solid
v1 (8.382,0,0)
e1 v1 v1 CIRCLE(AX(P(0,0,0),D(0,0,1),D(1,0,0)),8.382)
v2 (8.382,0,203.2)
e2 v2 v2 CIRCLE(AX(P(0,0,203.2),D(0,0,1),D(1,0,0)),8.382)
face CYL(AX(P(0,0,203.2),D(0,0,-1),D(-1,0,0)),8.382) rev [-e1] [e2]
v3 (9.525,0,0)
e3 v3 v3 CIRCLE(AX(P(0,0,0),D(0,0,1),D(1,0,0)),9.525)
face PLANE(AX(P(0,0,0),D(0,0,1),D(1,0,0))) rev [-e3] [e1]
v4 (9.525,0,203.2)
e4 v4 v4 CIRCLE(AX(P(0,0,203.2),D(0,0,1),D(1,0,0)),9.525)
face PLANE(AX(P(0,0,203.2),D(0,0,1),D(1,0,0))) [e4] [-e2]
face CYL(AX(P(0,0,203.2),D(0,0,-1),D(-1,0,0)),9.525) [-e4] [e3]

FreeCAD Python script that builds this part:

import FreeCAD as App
import Part
import Sketcher

V = App.Vector
Q = App.Units.Quantity

doc = App.newDocument("Part")
params = doc.addObject("Spreadsheet::Sheet", "Params")
for row, (alias, value) in enumerate([
    ("sketch1_diameter", "0.75 in"),
    ("sketch1_diameter2", "0.66 in"),
    ("pad1_length", "8 in"),
], start=1):
    params.set(f"A{row}", alias)
    params.set(f"B{row}", "=" + value)
    params.setAlias(f"B{row}", alias)

body = doc.addObject("PartDesign::Body", "Body")

sketch1 = doc.addObject("Sketcher::SketchObject", "Sketch")
body.addObject(sketch1)
sketch1.AttachmentSupport = (doc.XY_Plane, [""])
sketch1.MapMode = "FlatFace"
sketch1.addGeometry([
    Part.Circle(V(0, 0, 0), V(0, 0, 1), 10),
    Part.Circle(V(0, 0, 0), V(0, 0, 1), 8),
], False)
sketch1.addConstraint([
    Sketcher.Constraint("Coincident", 0, 3, -1, 1),
    Sketcher.Constraint("Coincident", 1, 3, -1, 1),
    Sketcher.Constraint("Diameter", 0, Q("0.75 in")),
    Sketcher.Constraint("Diameter", 1, Q("0.66 in")),
])
sketch1.setExpression("Constraints[2]", "Params.sketch1_diameter")
sketch1.setExpression("Constraints[3]", "Params.sketch1_diameter2")
pad1 = doc.addObject("PartDesign::Pad", "Pad")
body.addObject(pad1)
pad1.Profile = sketch1
pad1.setExpression("Length", "Params.pad1_length")

doc.recompute()
